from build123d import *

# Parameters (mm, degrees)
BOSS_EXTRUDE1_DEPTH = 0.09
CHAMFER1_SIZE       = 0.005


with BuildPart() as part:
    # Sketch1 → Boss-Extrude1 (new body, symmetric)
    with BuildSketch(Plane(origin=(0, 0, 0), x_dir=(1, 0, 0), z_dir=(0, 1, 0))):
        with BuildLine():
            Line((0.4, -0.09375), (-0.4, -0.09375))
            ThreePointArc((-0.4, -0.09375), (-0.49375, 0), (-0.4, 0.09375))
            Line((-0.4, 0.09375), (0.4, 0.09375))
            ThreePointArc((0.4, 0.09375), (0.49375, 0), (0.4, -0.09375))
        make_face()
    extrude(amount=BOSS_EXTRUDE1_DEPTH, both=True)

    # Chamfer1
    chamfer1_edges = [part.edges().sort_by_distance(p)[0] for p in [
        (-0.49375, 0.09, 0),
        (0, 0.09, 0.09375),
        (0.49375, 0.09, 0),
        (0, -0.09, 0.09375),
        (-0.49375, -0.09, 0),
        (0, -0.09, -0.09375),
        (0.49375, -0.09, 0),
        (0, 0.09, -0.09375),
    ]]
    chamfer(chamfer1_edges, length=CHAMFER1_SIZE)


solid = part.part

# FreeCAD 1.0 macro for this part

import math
import FreeCAD as App
import Part
import Sketcher
Q = App.Units.Quantity


def edges_at(feature, points):
    """Names of the edges that pass closest to the given points."""
    edges = feature.Shape.Edges
    near = lambda p: min(range(len(edges)), key=lambda i: edges[i].distToShape(Part.Vertex(*p))[0])
    return sorted({f"Edge{near(p) + 1}" for p in points})

doc = App.newDocument("Part")
body = doc.addObject("PartDesign::Body", "Body")

sketch1 = body.newObject("Sketcher::SketchObject", "Sketch")
sketch1.AttachmentSupport = (doc.getObject("XZ_Plane"), [""])
sketch1.MapMode = "FlatFace"
sketch1.addGeometry([
    Part.LineSegment(App.Vector(-0.4, 0.09375, 0), App.Vector(0.4, 0.09375, 0)),
    Part.ArcOfCircle(Part.Circle(App.Vector(0.4, 0, 0), App.Vector(0, 0, 1), 0.09375), math.radians(-90), math.radians(90)),
    Part.LineSegment(App.Vector(0.4, -0.09375, 0), App.Vector(-0.4, -0.09375, 0)),
    Part.ArcOfCircle(Part.Circle(App.Vector(-0.4, 0, 0), App.Vector(0, 0, 1), 0.09375), math.radians(90), math.radians(270)),
], False)
sketch1.addConstraint([
    Sketcher.Constraint("Tangent", 0, 2, 1, 2),
    Sketcher.Constraint("Tangent", 1, 1, 2, 1),
    Sketcher.Constraint("Tangent", 2, 2, 3, 2),
    Sketcher.Constraint("Tangent", 3, 1, 0, 1),
    Sketcher.Constraint("Horizontal", 0),
    Sketcher.Constraint("Horizontal", 2),
    Sketcher.Constraint("Symmetric", 1, 3, 3, 3, -1, 1),
    Sketcher.Constraint("DistanceX", 0, 1, 0, 2, Q("0.8 mm")),
    Sketcher.Constraint("Radius", 1, Q("0.09375 mm")),
])
pad1 = body.newObject("PartDesign::Pad", "Pad")
pad1.Profile = sketch1
pad1.Length = 0.18
pad1.Midplane = True
doc.recompute()

chamfer = body.newObject("PartDesign::Chamfer", "Chamfer")
chamfer.Base = (pad1, edges_at(pad1, [
    (-0.494, 0.09, 0),
    (0, 0.09, 0.094),
    (0.494, 0.09, 0),
    (0, -0.09, 0.094),
    (-0.494, -0.09, 0),
    (0, -0.09, -0.094),
    (0.494, -0.09, 0),
    (0, 0.09, -0.094),
]))
chamfer.Size = 0.005

doc.recompute()
